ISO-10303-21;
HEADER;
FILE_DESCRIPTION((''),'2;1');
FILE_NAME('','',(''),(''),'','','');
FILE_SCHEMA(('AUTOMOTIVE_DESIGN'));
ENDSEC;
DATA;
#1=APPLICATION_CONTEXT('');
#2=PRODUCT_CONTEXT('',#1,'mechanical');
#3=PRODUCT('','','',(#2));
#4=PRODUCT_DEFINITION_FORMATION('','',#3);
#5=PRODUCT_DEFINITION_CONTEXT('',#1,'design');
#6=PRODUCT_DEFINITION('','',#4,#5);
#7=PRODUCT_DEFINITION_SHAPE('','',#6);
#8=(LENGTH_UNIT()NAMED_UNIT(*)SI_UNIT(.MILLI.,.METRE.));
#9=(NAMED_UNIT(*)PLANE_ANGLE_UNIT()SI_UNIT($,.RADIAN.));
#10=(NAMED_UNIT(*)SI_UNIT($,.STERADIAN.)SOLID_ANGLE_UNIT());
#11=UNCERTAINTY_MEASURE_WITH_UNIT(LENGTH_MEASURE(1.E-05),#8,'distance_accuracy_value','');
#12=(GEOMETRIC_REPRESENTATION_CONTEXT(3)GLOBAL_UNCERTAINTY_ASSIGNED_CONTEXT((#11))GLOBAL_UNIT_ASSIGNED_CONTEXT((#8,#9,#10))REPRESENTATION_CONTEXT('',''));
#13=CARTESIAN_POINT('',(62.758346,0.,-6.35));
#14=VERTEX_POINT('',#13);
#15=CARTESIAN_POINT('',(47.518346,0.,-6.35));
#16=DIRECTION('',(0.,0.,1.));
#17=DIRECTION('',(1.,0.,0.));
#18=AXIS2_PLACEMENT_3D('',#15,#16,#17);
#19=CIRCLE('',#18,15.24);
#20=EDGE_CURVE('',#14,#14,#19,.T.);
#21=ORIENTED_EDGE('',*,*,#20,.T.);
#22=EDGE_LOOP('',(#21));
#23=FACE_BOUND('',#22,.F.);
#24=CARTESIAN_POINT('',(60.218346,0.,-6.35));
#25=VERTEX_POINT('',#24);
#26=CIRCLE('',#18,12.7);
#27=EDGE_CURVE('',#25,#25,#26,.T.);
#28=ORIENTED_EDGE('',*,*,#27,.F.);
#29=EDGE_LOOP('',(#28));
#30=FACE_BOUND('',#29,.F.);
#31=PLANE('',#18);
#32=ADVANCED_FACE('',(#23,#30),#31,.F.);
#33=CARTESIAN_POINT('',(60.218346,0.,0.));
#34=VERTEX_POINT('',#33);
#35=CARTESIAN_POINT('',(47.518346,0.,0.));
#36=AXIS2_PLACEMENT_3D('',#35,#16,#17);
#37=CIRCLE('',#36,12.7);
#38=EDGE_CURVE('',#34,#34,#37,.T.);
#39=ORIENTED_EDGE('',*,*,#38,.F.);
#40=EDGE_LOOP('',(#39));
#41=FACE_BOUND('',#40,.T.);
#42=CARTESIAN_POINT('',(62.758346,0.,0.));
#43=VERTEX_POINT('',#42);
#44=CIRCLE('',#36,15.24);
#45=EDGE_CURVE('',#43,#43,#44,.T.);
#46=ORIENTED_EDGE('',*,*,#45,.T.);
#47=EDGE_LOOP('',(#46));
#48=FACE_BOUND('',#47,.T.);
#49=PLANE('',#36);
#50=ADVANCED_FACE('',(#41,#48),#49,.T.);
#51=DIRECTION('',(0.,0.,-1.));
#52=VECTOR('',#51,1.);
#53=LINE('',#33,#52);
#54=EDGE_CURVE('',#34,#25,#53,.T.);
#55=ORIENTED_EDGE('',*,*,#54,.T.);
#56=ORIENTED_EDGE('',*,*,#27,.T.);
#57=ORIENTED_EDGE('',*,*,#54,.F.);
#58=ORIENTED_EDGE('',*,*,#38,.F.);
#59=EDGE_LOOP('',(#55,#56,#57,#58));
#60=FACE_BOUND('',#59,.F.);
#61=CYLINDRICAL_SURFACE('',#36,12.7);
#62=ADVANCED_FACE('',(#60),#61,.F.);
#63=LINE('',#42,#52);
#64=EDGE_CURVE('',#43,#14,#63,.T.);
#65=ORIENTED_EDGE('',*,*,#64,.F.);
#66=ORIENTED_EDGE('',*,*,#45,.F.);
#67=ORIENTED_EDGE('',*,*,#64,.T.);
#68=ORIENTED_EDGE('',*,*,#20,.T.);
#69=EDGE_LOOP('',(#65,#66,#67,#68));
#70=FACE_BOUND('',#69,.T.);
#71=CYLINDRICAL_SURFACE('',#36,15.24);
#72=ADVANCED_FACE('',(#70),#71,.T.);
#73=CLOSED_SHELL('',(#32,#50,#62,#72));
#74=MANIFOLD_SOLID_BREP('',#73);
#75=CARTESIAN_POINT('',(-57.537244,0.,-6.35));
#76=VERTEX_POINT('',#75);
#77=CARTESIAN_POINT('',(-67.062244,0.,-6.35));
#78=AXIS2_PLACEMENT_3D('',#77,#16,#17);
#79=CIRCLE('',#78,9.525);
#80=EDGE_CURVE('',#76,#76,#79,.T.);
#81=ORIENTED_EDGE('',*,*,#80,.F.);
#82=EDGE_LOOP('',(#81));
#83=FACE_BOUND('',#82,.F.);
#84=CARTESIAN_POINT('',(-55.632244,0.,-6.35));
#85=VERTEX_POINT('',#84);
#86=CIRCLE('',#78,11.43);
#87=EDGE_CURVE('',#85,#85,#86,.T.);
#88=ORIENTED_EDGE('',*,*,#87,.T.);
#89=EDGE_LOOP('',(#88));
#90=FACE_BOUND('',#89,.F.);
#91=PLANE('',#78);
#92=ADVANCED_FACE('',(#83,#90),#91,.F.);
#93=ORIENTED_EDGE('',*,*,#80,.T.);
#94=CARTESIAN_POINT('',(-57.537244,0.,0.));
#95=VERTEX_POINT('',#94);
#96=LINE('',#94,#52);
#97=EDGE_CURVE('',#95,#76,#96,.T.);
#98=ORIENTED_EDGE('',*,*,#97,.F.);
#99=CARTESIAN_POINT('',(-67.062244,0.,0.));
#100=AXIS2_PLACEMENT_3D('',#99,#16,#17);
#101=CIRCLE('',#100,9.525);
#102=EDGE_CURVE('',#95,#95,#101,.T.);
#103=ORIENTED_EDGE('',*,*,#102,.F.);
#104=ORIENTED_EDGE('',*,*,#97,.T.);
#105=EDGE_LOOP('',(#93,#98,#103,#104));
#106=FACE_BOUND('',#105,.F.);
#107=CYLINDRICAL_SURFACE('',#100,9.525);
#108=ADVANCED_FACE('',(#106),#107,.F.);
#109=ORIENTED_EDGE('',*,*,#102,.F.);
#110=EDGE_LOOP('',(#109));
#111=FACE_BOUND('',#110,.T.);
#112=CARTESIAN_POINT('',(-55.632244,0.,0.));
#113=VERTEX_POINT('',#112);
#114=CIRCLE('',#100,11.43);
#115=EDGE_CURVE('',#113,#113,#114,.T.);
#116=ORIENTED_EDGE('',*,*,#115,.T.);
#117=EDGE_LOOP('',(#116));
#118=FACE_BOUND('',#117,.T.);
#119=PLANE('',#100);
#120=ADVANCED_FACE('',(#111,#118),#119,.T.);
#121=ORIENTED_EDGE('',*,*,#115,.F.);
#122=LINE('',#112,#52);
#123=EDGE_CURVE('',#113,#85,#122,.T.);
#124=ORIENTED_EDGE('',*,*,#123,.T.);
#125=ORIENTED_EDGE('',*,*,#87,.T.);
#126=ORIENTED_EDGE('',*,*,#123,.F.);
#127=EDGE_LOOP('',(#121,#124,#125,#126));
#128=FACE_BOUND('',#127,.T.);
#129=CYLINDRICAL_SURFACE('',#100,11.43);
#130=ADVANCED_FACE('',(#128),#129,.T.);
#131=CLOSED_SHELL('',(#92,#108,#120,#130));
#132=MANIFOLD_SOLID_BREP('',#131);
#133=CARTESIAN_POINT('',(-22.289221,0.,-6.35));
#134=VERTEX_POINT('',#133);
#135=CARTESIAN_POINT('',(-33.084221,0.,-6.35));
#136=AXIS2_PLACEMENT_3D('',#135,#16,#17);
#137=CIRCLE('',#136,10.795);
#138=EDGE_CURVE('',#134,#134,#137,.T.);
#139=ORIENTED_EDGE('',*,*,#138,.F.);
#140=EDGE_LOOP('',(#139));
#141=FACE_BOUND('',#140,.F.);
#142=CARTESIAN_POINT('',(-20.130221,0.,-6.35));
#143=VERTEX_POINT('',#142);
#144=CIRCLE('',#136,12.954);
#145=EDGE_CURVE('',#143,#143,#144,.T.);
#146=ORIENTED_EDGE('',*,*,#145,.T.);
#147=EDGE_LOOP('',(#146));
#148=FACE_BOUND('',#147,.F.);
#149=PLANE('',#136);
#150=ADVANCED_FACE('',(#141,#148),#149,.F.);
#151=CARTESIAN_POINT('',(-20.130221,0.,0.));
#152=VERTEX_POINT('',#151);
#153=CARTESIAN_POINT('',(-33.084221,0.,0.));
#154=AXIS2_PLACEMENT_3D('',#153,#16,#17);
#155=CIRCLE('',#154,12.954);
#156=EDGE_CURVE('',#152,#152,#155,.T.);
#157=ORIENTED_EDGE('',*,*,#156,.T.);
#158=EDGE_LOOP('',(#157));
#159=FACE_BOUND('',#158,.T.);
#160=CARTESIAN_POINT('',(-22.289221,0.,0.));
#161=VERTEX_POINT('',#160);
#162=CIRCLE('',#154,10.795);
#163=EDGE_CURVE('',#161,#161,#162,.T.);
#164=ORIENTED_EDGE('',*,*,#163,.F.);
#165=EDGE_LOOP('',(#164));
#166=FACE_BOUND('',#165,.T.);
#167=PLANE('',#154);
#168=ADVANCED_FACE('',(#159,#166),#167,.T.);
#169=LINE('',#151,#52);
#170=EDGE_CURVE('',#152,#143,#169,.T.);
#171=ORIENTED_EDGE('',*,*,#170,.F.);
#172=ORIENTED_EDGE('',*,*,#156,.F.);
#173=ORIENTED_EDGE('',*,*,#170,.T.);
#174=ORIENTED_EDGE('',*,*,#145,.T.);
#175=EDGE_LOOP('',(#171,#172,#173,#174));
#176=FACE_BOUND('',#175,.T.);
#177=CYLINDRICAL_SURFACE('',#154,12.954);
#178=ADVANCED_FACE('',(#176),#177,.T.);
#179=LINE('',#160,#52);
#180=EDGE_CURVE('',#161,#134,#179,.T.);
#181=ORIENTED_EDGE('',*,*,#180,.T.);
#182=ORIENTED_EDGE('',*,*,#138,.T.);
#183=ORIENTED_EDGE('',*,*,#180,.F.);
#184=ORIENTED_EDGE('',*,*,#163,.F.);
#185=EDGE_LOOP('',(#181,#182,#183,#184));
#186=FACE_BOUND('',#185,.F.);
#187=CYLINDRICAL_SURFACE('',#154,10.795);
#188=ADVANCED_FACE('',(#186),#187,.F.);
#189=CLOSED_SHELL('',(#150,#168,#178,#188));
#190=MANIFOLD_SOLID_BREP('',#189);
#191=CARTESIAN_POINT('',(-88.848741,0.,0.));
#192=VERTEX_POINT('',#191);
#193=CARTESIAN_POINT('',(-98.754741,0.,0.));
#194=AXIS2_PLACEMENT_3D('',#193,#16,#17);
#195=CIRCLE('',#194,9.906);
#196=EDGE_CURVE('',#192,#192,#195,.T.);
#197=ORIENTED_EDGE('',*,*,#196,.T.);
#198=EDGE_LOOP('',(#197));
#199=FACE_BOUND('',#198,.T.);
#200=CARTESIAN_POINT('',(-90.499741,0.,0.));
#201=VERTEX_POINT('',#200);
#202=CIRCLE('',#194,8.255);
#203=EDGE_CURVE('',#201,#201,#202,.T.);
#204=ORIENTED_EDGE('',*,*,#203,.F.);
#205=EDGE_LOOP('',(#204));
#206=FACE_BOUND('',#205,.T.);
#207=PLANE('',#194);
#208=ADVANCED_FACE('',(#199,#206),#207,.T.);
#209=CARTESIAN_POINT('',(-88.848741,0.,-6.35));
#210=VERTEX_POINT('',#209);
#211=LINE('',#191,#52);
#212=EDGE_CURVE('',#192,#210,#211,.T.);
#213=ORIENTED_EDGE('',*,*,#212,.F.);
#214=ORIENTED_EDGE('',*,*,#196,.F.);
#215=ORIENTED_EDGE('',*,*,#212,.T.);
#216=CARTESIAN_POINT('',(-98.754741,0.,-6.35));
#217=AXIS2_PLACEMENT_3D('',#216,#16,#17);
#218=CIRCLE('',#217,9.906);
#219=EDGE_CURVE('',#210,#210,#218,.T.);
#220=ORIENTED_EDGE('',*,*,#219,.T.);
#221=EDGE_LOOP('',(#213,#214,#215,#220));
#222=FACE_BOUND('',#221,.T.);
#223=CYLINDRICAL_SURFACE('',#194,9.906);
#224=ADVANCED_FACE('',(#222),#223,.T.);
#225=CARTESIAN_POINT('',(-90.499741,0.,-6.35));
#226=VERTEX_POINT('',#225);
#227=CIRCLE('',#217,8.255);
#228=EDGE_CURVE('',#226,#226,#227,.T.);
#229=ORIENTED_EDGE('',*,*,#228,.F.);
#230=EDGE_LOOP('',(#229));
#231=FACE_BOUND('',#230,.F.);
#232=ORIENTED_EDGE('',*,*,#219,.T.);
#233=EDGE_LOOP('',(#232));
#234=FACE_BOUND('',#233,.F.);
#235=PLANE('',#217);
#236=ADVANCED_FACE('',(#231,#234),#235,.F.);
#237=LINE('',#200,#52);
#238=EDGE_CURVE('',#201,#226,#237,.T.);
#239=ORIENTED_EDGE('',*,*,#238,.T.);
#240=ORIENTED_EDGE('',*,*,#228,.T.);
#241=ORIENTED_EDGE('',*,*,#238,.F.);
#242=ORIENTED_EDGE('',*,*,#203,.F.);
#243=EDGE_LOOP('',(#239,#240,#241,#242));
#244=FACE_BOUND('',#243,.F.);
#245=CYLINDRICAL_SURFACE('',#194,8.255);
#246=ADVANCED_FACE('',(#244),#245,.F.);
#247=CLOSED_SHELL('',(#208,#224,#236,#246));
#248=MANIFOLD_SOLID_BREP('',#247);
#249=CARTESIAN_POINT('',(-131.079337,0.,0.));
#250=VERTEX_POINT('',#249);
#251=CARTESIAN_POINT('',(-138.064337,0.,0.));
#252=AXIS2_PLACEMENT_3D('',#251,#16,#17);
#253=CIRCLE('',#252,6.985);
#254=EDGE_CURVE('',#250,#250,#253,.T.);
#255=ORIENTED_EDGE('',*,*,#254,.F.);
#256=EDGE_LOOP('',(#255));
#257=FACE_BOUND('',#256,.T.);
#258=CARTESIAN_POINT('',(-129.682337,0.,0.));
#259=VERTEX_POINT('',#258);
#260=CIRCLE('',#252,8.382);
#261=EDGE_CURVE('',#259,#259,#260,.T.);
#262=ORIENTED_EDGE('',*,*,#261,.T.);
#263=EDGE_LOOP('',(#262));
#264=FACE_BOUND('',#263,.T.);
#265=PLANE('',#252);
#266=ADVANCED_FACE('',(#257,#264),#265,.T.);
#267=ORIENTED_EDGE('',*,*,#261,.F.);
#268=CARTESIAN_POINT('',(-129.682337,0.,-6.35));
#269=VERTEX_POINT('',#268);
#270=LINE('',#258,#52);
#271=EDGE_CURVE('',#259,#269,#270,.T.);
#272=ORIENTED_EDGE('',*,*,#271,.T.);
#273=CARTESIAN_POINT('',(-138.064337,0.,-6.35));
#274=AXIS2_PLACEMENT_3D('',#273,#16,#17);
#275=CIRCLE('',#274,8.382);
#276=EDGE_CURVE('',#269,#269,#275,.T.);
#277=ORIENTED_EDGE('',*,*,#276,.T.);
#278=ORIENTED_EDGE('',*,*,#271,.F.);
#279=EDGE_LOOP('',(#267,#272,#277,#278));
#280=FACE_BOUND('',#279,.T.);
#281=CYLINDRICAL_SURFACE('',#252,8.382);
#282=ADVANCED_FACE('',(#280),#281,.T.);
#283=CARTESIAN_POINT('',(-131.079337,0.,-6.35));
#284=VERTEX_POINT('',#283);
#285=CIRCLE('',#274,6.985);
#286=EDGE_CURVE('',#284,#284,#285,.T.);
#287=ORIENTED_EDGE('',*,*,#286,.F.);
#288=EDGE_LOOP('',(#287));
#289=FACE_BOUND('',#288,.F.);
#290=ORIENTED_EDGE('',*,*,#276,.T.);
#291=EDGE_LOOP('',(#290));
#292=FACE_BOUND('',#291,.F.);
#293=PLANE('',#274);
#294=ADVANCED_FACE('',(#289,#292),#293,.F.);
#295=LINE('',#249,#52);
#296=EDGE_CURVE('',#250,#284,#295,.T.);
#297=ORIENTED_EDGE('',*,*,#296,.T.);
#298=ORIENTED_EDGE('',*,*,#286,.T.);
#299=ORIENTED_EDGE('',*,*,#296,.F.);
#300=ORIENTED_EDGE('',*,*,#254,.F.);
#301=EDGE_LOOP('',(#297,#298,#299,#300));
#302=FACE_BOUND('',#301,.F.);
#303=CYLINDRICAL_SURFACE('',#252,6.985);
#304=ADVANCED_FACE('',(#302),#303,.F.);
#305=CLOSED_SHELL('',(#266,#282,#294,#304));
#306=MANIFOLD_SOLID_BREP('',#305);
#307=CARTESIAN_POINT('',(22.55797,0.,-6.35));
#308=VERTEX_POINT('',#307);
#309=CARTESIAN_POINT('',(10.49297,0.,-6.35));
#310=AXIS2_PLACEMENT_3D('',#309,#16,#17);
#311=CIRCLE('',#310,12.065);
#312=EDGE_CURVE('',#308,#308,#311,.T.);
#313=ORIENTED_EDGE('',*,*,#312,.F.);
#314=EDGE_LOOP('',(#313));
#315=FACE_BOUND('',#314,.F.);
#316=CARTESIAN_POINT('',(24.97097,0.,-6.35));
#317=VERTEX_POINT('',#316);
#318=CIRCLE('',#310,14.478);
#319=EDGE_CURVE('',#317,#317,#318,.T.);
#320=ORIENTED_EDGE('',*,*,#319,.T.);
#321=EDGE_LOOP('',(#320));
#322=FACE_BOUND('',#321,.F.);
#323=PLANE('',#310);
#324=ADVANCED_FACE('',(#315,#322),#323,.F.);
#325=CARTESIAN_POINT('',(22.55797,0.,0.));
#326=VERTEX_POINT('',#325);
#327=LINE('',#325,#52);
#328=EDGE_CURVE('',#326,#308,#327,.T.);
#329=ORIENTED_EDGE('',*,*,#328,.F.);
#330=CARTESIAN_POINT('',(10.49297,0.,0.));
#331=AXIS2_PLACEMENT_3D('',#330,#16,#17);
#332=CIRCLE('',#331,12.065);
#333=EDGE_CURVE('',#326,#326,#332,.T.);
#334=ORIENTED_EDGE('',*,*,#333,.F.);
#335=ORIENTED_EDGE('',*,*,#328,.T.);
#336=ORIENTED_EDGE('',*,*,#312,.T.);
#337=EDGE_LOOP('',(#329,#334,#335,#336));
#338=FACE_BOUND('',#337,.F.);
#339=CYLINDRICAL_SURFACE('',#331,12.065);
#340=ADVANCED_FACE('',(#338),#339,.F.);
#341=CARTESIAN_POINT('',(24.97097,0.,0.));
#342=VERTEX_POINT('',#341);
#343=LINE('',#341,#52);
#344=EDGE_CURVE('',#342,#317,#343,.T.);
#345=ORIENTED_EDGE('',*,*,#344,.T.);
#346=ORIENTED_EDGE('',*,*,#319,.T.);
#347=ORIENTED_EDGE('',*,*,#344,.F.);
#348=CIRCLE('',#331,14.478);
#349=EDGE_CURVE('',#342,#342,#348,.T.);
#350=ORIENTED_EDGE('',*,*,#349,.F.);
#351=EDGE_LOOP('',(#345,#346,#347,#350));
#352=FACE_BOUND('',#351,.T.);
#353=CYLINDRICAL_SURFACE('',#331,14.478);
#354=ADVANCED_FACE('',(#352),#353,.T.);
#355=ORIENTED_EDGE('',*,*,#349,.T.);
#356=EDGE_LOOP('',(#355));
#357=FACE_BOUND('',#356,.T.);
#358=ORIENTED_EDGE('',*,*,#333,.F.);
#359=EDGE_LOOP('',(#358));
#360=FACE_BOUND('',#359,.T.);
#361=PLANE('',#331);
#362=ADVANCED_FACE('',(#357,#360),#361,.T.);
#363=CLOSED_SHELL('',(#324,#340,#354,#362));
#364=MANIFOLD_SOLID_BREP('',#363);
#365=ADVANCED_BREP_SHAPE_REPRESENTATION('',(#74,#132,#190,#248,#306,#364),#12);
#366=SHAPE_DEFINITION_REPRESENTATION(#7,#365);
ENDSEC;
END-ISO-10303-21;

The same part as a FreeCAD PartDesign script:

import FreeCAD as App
import Part
import Sketcher

V = App.Vector
Q = App.Units.Quantity

doc = App.newDocument("Part")
body = doc.addObject("PartDesign::Body", "Body")
body.AllowCompound = True

# Sketch on XY plane
sketch1 = body.newObject("Sketcher::SketchObject", "Sketch")
sketch1.AttachmentSupport = (doc.getObject("XY_Plane"), [""])
sketch1.MapMode = "FlatFace"
sketch1.addGeometry([
    Part.Circle(V(-138, 0, 0), V(0, 0, 1), 8),  # 0
    Part.Circle(V(-138, 0, 0), V(0, 0, 1), 7),  # 1
    Part.Circle(V(-99, 0, 0), V(0, 0, 1), 10),  # 2
    Part.Circle(V(-99, 0, 0), V(0, 0, 1), 8),  # 3
    Part.Circle(V(-67, 0, 0), V(0, 0, 1), 11),  # 4
    Part.Circle(V(-67, 0, 0), V(0, 0, 1), 10),  # 5
    Part.Circle(V(-33, 0, 0), V(0, 0, 1), 13),  # 6
    Part.Circle(V(-33, 0, 0), V(0, 0, 1), 11),  # 7
    Part.Circle(V(10, 0, 0), V(0, 0, 1), 14),  # 8
    Part.Circle(V(10, 0, 0), V(0, 0, 1), 12),  # 9
    Part.Circle(V(48, 0, 0), V(0, 0, 1), 15),  # 10
    Part.Circle(V(48, 0, 0), V(0, 0, 1), 13),  # 11
], False)
sketch1.addConstraint([
    Sketcher.Constraint("Coincident", 1, 3, 0, 3),
    Sketcher.Constraint("Coincident", 3, 3, 2, 3),
    Sketcher.Constraint("Coincident", 5, 3, 4, 3),
    Sketcher.Constraint("Coincident", 7, 3, 6, 3),
    Sketcher.Constraint("Coincident", 9, 3, 8, 3),
    Sketcher.Constraint("Coincident", 11, 3, 10, 3),
    Sketcher.Constraint("PointOnObject", 0, 3, -1),
    Sketcher.Constraint("PointOnObject", 2, 3, -1),
    Sketcher.Constraint("PointOnObject", 4, 3, -1),
    Sketcher.Constraint("PointOnObject", 6, 3, -1),
    Sketcher.Constraint("PointOnObject", 8, 3, -1),
    Sketcher.Constraint("PointOnObject", 10, 3, -1),
    Sketcher.Constraint("Diameter", 11, Q("1 in")),
    Sketcher.Constraint("Diameter", 4, Q("0.9 in")),
    Sketcher.Constraint("Diameter", 10, Q("1.2 in")),
    Sketcher.Constraint("Diameter", 0, Q("0.66 in")),
    Sketcher.Constraint("Diameter", 1, Q("0.55 in")),
    Sketcher.Constraint("Diameter", 2, Q("0.78 in")),
    Sketcher.Constraint("Diameter", 3, Q("0.65 in")),
    Sketcher.Constraint("Diameter", 5, Q("0.75 in")),
    Sketcher.Constraint("Diameter", 6, Q("1.02 in")),
    Sketcher.Constraint("Diameter", 7, Q("0.85 in")),
    Sketcher.Constraint("Diameter", 8, Q("1.14 in")),
    Sketcher.Constraint("Diameter", 9, Q("0.95 in")),
    Sketcher.Constraint("DistanceX", 2, 3, -1, 1, 98.754741),
    Sketcher.Constraint("DistanceX", 6, 3, -1, 1, 33.084221),
    Sketcher.Constraint("DistanceX", -1, 1, 8, 3, 10.49297),
    Sketcher.Constraint("DistanceX", 4, 3, 10, 3, 114.58059),
    Sketcher.Constraint("DistanceX", 0, 3, -1, 1, 138.064337),
    Sketcher.Constraint("DistanceX", 4, 3, -1, 1, 67.062244),
])
pad1 = body.newObject("PartDesign::Pad", "Pad")
pad1.Profile = sketch1
pad1.Length = Q("0.25 in")
pad1.Reversed = True

doc.recompute()
